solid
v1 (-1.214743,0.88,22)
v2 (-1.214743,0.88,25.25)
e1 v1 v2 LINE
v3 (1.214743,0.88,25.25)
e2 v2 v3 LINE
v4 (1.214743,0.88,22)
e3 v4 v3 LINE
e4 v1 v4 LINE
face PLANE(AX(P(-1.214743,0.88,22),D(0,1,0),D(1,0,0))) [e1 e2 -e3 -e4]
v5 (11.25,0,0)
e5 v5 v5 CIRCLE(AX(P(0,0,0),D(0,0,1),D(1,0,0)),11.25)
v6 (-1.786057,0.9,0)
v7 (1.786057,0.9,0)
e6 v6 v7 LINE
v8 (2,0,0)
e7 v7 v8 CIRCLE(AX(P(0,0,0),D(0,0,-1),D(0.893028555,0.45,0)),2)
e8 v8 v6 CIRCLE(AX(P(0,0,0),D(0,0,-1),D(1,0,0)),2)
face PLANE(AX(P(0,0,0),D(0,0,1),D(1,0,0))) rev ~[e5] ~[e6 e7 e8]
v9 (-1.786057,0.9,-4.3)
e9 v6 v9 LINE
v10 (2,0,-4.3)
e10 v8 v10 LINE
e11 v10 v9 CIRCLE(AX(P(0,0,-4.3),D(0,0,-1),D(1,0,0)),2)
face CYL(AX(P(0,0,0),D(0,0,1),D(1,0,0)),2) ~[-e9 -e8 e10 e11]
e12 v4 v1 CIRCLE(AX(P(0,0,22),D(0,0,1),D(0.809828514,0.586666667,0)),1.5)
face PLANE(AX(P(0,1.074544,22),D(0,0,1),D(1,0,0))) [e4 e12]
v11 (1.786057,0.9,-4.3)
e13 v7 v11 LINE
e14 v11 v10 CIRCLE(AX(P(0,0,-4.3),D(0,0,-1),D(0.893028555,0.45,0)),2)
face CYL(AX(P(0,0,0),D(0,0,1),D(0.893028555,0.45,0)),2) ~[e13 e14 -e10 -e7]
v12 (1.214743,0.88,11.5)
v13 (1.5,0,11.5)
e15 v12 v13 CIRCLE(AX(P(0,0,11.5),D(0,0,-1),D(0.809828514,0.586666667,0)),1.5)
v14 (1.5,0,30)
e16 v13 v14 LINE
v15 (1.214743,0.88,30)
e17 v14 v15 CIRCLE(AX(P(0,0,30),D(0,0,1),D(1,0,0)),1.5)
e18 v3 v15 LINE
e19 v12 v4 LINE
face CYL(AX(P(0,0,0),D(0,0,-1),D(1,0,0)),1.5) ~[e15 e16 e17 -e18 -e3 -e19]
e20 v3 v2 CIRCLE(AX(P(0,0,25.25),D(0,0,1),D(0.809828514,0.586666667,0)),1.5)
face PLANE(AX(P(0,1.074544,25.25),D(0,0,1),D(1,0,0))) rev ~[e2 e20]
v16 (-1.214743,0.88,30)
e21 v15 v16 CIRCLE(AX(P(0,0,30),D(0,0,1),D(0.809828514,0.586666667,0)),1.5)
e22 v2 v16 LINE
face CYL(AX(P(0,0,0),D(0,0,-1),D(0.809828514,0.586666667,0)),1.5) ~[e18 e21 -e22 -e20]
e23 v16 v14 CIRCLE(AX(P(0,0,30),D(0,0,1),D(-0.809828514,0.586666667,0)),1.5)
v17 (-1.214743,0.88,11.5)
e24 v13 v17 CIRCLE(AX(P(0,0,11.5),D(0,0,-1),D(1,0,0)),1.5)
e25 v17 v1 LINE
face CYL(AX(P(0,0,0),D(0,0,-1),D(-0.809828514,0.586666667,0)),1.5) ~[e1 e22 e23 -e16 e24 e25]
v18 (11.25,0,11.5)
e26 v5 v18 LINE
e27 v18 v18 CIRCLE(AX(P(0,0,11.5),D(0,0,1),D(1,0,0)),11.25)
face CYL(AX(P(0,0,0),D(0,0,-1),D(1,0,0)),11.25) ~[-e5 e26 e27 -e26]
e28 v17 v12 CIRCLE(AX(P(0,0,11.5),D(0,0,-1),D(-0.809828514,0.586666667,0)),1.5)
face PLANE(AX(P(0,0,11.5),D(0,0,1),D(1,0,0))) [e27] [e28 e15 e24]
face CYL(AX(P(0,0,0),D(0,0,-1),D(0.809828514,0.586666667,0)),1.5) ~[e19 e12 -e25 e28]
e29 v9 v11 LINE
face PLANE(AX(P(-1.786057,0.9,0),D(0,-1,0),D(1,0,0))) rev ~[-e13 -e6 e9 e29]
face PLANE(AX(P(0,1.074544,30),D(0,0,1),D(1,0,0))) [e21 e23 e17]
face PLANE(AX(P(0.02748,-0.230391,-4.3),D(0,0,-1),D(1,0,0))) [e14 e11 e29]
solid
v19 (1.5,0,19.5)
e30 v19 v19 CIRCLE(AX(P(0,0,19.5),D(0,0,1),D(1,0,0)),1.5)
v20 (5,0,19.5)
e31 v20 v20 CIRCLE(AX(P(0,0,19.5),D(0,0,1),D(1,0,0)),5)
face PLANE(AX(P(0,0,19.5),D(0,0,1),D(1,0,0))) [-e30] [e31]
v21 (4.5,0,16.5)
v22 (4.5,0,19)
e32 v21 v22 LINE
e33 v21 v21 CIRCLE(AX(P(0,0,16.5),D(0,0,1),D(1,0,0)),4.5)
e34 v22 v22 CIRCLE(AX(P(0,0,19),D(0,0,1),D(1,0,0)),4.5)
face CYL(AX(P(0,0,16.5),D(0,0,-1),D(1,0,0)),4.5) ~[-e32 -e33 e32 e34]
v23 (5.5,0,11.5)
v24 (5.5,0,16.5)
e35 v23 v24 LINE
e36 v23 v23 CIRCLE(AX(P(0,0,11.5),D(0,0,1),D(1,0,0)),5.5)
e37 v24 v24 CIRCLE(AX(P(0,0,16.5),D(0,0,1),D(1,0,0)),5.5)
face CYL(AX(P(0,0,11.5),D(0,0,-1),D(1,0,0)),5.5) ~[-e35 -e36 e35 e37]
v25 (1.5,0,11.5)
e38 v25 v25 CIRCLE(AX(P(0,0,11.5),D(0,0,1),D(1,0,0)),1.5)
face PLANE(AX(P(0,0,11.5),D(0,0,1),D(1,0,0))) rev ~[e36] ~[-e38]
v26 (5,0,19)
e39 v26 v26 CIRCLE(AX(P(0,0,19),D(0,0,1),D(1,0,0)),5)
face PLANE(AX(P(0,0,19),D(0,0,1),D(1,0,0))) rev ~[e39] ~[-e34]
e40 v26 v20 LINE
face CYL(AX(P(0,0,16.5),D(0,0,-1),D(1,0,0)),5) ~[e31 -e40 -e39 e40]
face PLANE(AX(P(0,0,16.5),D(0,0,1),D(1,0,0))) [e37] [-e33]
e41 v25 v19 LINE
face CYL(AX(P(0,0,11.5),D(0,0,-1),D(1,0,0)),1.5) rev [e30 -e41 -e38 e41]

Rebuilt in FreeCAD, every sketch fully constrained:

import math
import FreeCAD as App
import Part
import Sketcher

V = App.Vector
Q = App.Units.Quantity

doc = App.newDocument("Part")
body = doc.addObject("PartDesign::Body", "Body")

sketch1 = body.newObject("Sketcher::SketchObject", "Sketch")
sketch1.AttachmentSupport = (doc.getObject("XY_Plane"), [""])
sketch1.MapMode = "FlatFace"
sketch1.addGeometry([
    Part.Circle(V(0, 0, 0), V(0, 0, 1), 11.25),
    Part.ArcOfCircle(Part.Circle(V(0, 0, 0), V(0, 0, 1), 1.5), math.radians(35.92082), math.radians(144.07918)),
    Part.ArcOfCircle(Part.Circle(V(0, 0, 0), V(0, 0, 1), 1.5), math.radians(0), math.radians(35.92082)),
    Part.ArcOfCircle(Part.Circle(V(0, 0, 0), V(0, 0, 1), 1.5), math.radians(144.07918), math.radians(360)),
], False)
sketch1.addConstraint([
    Sketcher.Constraint("Tangent", 1, 1, 2, 2),
    Sketcher.Constraint("Tangent", 2, 1, 3, 2),
    Sketcher.Constraint("Tangent", 3, 1, 1, 2),
    Sketcher.Constraint("Coincident", 0, 3, -1, 1),
    Sketcher.Constraint("Coincident", 1, 3, -1, 1),
    Sketcher.Constraint("PointOnObject", 2, 1, -1),
    Sketcher.Constraint("Horizontal", 1, 1, 3, 1),
    Sketcher.Constraint("Diameter", 0, Q("22.5 mm")),
    Sketcher.Constraint("Radius", 1, Q("1.5 mm")),
    Sketcher.Constraint("DistanceY", -1, 1, 1, 1, Q("0.88 mm")),
])
pad1 = body.newObject("PartDesign::Pad", "Pad")
pad1.Profile = sketch1
pad1.Length = 11.5

sketch2 = body.newObject("Sketcher::SketchObject", "Sketch001")
sketch2.AttachmentSupport = (doc.getObject("XY_Plane"), [""])
sketch2.MapMode = "FlatFace"
sketch2.addGeometry([
    Part.ArcOfCircle(Part.Circle(V(0, 0, 0), V(0, 0, 1), 1.5), math.radians(35.92082), math.radians(144.07918)),
    Part.ArcOfCircle(Part.Circle(V(0, 0, 0), V(0, 0, 1), 1.5), math.radians(144.07918), math.radians(360)),
    Part.ArcOfCircle(Part.Circle(V(0, 0, 0), V(0, 0, 1), 1.5), math.radians(0), math.radians(35.92082)),
], False)
sketch2.addConstraint([
    Sketcher.Constraint("Tangent", 0, 2, 1, 1),
    Sketcher.Constraint("Tangent", 1, 2, 2, 1),
    Sketcher.Constraint("Tangent", 2, 2, 0, 1),
    Sketcher.Constraint("Coincident", 0, 3, -1, 1),
    Sketcher.Constraint("PointOnObject", 1, 2, -1),
    Sketcher.Constraint("Horizontal", 0, 2, 2, 2),
    Sketcher.Constraint("Radius", 0, Q("1.5 mm")),
    Sketcher.Constraint("DistanceY", -1, 1, 0, 2, Q("0.88 mm")),
])
pad2 = body.newObject("PartDesign::Pad", "Pad001")
pad2.Profile = sketch2
pad2.Length = 30

sketch3 = body.newObject("Sketcher::SketchObject", "Sketch002")
sketch3.AttachmentSupport = (doc.getObject("XY_Plane"), [""])
sketch3.MapMode = "FlatFace"
sketch3.AttachmentOffset = App.Placement(V(0, 0, 22), App.Rotation())
sketch3.addGeometry([
    Part.LineSegment(V(-1.214743, 0.88, 0), V(1.214743, 0.88, 0)),
    Part.ArcOfCircle(Part.Circle(V(0, 0, 0), V(0, 0, 1), 1.5), math.radians(35.92082), math.radians(144.07918)),
], False)
sketch3.addConstraint([
    Sketcher.Constraint("Coincident", 0, 1, 1, 2),
    Sketcher.Constraint("Coincident", 1, 1, 0, 2),
    Sketcher.Constraint("Horizontal", 0),
    Sketcher.Constraint("Coincident", 1, 3, -1, 1),
    Sketcher.Constraint("Radius", 1, Q("1.5 mm")),
    Sketcher.Constraint("DistanceY", -1, 1, 0, 1, Q("0.88 mm")),
])
pocket1 = body.newObject("PartDesign::Pocket", "Pocket")
pocket1.Profile = sketch3
pocket1.Length = 3.25
pocket1.Reversed = True

sketch4 = body.newObject("Sketcher::SketchObject", "Sketch003")
sketch4.AttachmentSupport = (doc.getObject("XY_Plane"), [""])
sketch4.MapMode = "FlatFace"
sketch4.addGeometry([
    Part.ArcOfCircle(Part.Circle(V(0, 0, 0), V(0, 0, 1), 2), math.radians(0), math.radians(26.743684)),
    Part.ArcOfCircle(Part.Circle(V(0, 0, 0), V(0, 0, 1), 2), math.radians(153.256316), math.radians(360)),
    Part.LineSegment(V(-1.786057, 0.9, 0), V(1.786057, 0.9, 0)),
], False)
sketch4.addConstraint([
    Sketcher.Constraint("Tangent", 0, 1, 1, 2),
    Sketcher.Constraint("Coincident", 1, 1, 2, 1),
    Sketcher.Constraint("Coincident", 2, 2, 0, 2),
    Sketcher.Constraint("Horizontal", 2),
    Sketcher.Constraint("Coincident", 0, 3, -1, 1),
    Sketcher.Constraint("Equal", 0, 1),
    Sketcher.Constraint("PointOnObject", 0, 1, -1),
    Sketcher.Constraint("Radius", 0, Q("2 mm")),
    Sketcher.Constraint("DistanceY", -1, 1, 1, 1, Q("0.9 mm")),
])
pad3 = body.newObject("PartDesign::Pad", "Pad002")
pad3.Profile = sketch4
pad3.Length = 4.3
pad3.Reversed = True
body2 = doc.addObject("PartDesign::Body", "Body001")

sketch5 = body2.newObject("Sketcher::SketchObject", "Sketch004")
sketch5.AttachmentSupport = (doc.getObject("XY_Plane001"), [""])
sketch5.MapMode = "FlatFace"
sketch5.AttachmentOffset = App.Placement(V(0, 0, 11.5), App.Rotation())
sketch5.addGeometry([
    Part.Circle(V(0, 0, 0), V(0, 0, 1), 5.5),
    Part.Circle(V(0, 0, 0), V(0, 0, 1), 1.5),
], False)
sketch5.addConstraint([
    Sketcher.Constraint("Coincident", 0, 3, -1, 1),
    Sketcher.Constraint("Coincident", 1, 3, -1, 1),
    Sketcher.Constraint("Diameter", 0, Q("11 mm")),
    Sketcher.Constraint("Diameter", 1, Q("3 mm")),
])
pad4 = body2.newObject("PartDesign::Pad", "Pad003")
pad4.Profile = sketch5
pad4.Length = 8

sketch6 = body2.newObject("Sketcher::SketchObject", "Sketch005")
sketch6.AttachmentSupport = (doc.getObject("XY_Plane001"), [""])
sketch6.MapMode = "FlatFace"
sketch6.AttachmentOffset = App.Placement(V(0, 0, 16.5), App.Rotation())
sketch6.addGeometry([
    Part.Circle(V(0, 0, 0), V(0, 0, 1), 5.5),
    Part.Circle(V(0, 0, 0), V(0, 0, 1), 5),
], False)
sketch6.addConstraint([
    Sketcher.Constraint("Coincident", 0, 3, -1, 1),
    Sketcher.Constraint("Coincident", 1, 3, -1, 1),
    Sketcher.Constraint("Diameter", 0, Q("11 mm")),
    Sketcher.Constraint("Diameter", 1, Q("10 mm")),
])
pocket2 = body2.newObject("PartDesign::Pocket", "Pocket001")
pocket2.Profile = sketch6
pocket2.Length = 3
pocket2.Reversed = True

sketch7 = body2.newObject("Sketcher::SketchObject", "Sketch006")
sketch7.AttachmentSupport = (doc.getObject("XY_Plane001"), [""])
sketch7.MapMode = "FlatFace"
sketch7.AttachmentOffset = App.Placement(V(0, 0, 16.5), App.Rotation())
sketch7.addGeometry([
    Part.Circle(V(0, 0, 0), V(0, 0, 1), 5),
    Part.Circle(V(0, 0, 0), V(0, 0, 1), 4.5),
], False)
sketch7.addConstraint([
    Sketcher.Constraint("Coincident", 0, 3, -1, 1),
    Sketcher.Constraint("Coincident", 1, 3, -1, 1),
    Sketcher.Constraint("Diameter", 0, Q("10 mm")),
    Sketcher.Constraint("Diameter", 1, Q("9 mm")),
])
pocket3 = body2.newObject("PartDesign::Pocket", "Pocket002")
pocket3.Profile = sketch7
pocket3.Length = 2.5
pocket3.Reversed = True

doc.recompute()
